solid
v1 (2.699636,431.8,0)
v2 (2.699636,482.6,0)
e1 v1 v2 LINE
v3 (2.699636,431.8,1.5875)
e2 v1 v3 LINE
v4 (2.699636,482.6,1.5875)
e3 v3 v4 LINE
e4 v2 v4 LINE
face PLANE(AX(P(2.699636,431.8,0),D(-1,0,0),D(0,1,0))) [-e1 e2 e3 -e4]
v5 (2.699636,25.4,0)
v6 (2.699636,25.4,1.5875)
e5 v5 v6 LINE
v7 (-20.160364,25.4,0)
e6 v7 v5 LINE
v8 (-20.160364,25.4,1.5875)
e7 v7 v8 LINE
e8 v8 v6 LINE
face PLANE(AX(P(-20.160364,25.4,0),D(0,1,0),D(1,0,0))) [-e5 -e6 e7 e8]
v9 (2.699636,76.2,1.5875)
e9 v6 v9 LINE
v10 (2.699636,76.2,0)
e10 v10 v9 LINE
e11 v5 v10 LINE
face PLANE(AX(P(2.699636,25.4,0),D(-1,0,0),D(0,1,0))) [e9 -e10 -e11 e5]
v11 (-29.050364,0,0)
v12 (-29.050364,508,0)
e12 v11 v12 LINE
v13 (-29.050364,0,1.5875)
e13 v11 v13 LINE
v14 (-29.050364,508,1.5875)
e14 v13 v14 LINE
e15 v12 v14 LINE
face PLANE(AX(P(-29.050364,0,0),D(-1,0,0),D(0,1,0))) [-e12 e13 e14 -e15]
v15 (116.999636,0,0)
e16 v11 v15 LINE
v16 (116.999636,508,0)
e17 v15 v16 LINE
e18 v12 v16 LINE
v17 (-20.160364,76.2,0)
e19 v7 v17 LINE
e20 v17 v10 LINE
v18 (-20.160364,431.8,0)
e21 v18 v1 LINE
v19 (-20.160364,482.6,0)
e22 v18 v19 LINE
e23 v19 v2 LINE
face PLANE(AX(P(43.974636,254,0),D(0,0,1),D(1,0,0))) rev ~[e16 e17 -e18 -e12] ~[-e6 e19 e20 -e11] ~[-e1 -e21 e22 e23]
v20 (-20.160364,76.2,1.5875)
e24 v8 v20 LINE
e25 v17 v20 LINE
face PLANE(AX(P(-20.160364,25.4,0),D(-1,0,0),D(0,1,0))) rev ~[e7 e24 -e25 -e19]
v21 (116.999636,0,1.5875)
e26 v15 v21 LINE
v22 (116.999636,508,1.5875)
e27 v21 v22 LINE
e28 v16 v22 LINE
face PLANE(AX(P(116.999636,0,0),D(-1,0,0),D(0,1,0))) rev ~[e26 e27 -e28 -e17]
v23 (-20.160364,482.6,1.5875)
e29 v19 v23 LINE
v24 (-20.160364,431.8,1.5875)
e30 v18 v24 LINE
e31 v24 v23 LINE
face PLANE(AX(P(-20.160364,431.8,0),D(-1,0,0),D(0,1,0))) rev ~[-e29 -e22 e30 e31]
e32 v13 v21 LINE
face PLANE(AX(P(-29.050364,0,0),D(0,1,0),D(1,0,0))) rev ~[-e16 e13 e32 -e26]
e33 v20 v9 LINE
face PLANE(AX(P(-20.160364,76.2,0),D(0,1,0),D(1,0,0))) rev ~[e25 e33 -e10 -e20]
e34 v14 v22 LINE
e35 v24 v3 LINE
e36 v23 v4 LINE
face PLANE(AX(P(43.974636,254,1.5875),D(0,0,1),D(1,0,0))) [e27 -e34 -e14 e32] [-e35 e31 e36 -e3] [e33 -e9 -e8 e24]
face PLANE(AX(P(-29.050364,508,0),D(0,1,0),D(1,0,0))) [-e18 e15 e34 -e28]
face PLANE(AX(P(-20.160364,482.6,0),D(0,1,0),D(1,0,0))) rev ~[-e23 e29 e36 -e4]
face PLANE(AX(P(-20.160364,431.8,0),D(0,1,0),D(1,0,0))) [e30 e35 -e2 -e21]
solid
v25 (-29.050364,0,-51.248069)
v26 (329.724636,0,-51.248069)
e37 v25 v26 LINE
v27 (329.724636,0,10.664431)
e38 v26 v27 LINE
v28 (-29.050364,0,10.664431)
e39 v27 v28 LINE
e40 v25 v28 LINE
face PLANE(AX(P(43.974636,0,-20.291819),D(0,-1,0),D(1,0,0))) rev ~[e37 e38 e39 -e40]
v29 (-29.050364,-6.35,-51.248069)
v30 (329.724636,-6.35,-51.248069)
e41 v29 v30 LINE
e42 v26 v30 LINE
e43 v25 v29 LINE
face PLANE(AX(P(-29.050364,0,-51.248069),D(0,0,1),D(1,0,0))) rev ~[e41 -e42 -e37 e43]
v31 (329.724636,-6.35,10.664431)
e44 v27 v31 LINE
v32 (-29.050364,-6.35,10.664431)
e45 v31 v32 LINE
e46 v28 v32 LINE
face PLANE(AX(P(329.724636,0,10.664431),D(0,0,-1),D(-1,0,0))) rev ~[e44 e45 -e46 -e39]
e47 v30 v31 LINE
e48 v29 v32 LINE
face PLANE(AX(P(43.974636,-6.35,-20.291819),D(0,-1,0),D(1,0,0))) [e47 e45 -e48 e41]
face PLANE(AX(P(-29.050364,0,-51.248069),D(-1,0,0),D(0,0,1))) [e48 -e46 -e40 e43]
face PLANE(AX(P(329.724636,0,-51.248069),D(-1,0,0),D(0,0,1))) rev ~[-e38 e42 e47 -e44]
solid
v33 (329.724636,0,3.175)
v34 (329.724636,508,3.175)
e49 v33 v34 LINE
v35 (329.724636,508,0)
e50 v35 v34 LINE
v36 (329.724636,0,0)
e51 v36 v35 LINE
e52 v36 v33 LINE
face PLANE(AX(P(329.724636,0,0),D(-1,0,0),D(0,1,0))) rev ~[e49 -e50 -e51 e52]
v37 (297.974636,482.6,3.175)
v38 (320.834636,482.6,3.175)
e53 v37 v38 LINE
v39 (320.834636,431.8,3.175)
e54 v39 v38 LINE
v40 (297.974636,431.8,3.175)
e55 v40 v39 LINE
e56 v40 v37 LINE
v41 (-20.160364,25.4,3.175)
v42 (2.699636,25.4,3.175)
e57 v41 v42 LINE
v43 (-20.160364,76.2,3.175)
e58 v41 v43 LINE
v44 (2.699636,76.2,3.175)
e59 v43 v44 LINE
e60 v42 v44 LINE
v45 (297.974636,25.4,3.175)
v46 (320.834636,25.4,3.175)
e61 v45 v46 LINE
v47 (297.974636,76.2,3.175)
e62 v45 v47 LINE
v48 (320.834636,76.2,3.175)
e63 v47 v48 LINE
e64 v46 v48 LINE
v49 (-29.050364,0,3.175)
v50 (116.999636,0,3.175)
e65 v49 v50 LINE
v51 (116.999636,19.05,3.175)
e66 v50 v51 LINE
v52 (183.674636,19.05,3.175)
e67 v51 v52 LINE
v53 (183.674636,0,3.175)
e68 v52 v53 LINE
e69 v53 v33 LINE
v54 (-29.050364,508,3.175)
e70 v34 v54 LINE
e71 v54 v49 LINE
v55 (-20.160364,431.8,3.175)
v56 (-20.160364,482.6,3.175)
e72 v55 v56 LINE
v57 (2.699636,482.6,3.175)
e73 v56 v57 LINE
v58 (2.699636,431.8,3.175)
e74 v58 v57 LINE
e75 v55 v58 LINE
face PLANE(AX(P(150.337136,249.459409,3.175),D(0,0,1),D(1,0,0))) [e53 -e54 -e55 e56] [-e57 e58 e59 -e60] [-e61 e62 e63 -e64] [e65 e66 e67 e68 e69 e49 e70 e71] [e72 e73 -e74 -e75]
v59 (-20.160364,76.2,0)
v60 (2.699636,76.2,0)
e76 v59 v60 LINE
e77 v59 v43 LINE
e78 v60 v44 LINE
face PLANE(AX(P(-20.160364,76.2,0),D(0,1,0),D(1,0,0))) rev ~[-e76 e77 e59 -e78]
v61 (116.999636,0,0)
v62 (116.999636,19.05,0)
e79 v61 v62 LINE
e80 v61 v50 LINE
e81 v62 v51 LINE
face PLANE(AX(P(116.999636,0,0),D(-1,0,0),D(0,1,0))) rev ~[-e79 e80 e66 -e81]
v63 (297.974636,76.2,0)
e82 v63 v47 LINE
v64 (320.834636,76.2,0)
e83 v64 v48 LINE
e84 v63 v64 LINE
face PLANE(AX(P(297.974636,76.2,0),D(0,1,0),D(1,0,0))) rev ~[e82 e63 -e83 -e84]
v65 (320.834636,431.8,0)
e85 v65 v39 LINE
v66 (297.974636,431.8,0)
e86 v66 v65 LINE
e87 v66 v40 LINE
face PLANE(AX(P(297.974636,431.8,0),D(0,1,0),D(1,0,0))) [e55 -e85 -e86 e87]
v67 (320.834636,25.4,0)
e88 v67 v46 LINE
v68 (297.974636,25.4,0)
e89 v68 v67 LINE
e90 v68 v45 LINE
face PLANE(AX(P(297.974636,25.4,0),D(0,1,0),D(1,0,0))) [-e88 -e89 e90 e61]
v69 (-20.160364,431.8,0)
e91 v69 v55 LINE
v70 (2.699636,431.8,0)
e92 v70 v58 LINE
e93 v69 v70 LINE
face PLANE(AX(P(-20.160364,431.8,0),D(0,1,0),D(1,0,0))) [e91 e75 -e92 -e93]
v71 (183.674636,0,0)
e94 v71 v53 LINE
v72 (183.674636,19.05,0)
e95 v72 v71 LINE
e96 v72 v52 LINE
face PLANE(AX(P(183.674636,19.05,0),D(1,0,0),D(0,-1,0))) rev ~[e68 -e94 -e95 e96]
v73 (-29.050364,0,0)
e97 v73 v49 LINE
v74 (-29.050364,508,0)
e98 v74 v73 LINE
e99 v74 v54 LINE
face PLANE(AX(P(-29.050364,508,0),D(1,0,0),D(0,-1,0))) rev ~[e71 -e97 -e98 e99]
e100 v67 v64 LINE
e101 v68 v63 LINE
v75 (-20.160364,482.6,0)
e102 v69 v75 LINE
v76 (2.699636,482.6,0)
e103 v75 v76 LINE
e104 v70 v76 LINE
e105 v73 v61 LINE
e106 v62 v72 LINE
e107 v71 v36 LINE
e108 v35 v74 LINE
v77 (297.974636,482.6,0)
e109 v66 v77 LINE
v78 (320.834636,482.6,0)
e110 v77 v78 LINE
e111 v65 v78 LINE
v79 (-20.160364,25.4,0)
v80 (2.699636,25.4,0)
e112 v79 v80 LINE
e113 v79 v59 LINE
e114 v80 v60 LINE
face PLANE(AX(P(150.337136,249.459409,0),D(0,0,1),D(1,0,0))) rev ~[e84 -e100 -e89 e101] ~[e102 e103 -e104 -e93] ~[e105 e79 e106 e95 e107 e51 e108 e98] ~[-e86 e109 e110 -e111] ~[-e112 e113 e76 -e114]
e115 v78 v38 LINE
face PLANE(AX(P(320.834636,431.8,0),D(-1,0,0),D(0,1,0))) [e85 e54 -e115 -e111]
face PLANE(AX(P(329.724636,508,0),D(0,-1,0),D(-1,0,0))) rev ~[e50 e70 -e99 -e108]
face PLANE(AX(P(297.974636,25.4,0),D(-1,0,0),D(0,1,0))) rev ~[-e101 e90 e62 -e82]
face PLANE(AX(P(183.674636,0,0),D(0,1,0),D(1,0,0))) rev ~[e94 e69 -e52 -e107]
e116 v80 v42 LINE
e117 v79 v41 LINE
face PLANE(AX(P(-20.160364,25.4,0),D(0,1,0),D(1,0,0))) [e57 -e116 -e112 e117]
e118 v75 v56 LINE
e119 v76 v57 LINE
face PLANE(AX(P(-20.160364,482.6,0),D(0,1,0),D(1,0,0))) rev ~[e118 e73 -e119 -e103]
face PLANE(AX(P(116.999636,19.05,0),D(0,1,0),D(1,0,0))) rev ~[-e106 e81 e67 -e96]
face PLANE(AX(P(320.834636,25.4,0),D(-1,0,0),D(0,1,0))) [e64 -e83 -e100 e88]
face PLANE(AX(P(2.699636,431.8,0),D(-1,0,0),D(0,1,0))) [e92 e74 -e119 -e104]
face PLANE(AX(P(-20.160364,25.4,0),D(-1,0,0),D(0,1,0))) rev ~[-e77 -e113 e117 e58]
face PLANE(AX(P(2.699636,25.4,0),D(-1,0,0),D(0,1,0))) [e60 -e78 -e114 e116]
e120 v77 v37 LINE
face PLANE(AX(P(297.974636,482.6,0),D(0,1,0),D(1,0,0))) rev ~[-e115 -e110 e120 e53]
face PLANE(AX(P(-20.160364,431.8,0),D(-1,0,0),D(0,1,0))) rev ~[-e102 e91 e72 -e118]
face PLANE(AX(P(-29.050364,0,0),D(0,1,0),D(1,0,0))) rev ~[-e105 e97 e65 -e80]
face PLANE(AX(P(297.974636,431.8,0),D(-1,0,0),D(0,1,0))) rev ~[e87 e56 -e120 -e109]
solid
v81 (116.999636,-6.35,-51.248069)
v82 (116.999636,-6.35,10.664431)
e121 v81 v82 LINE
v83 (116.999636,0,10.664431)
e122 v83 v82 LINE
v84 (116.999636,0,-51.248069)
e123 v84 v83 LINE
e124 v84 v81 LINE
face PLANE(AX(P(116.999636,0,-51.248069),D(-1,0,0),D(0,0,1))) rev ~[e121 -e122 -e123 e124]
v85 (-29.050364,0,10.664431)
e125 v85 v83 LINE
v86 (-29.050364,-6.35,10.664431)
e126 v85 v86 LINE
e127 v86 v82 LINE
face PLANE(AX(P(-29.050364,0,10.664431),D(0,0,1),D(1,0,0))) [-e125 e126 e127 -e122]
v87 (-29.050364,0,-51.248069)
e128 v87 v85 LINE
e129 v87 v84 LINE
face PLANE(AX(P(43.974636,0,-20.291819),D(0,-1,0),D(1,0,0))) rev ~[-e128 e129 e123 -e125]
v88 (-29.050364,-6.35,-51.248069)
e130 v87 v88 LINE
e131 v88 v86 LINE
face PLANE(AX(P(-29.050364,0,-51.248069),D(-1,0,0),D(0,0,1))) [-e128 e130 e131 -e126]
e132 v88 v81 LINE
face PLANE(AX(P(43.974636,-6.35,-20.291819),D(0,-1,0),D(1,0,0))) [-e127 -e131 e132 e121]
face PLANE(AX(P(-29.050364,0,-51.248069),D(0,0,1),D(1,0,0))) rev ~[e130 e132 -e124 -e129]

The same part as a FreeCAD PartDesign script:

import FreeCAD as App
import Part
import Sketcher
Q = App.Units.Quantity

doc = App.newDocument("Part")
body = doc.addObject("PartDesign::Body", "Body")

# Sketch on XZ plane
sketch1 = body.newObject("Sketcher::SketchObject", "Sketch")
sketch1.AttachmentSupport = (doc.getObject("XZ_Plane"), [""])
sketch1.MapMode = "FlatFace"
sketch1.addGeometry([
    Part.LineSegment(App.Vector(-29, 11, 0), App.Vector(-29, -51, 0)),
    Part.LineSegment(App.Vector(-29, -51, 0), App.Vector(330, -51, 0)),
    Part.LineSegment(App.Vector(330, -51, 0), App.Vector(330, 11, 0)),
    Part.LineSegment(App.Vector(330, 11, 0), App.Vector(-29, 11, 0)),
], False)
sketch1.addConstraint([
    Sketcher.Constraint("Coincident", 0, 2, 1, 1),
    Sketcher.Constraint("Coincident", 1, 2, 2, 1),
    Sketcher.Constraint("Coincident", 2, 2, 3, 1),
    Sketcher.Constraint("Coincident", 3, 2, 0, 1),
    Sketcher.Constraint("Vertical", 0),
    Sketcher.Constraint("Horizontal", 1),
    Sketcher.Constraint("Vertical", 2),
    Sketcher.Constraint("Horizontal", 3),
    Sketcher.Constraint("DistanceX", 1, 1, 1, 2, Q("14.125 in")),
    Sketcher.Constraint("DistanceY", 0, 2, 0, 1, Q("2.4375 in")),
    Sketcher.Constraint("DistanceY", 0, 2, -1, 1, Q("51.248069 mm")),
    Sketcher.Constraint("DistanceX", 0, 2, -1, 1, Q("29.050364 mm")),
])
pad1 = body.newObject("PartDesign::Pad", "Pad")
pad1.Profile = sketch1
pad1.Length = Q("0.25 in")
body2 = doc.addObject("PartDesign::Body", "Body001")

# Sketch on XZ plane
sketch2 = body2.newObject("Sketcher::SketchObject", "Sketch001")
sketch2.AttachmentSupport = (doc.getObject("XZ_Plane001"), [""])
sketch2.MapMode = "FlatFace"
sketch2.addGeometry([
    Part.LineSegment(App.Vector(-29, 11, 0), App.Vector(-29, -51, 0)),
    Part.LineSegment(App.Vector(-29, -51, 0), App.Vector(117, -51, 0)),
    Part.LineSegment(App.Vector(117, -51, 0), App.Vector(117, 11, 0)),
    Part.LineSegment(App.Vector(117, 11, 0), App.Vector(-29, 11, 0)),
], False)
sketch2.addConstraint([
    Sketcher.Constraint("Coincident", 0, 2, 1, 1),
    Sketcher.Constraint("Coincident", 1, 2, 2, 1),
    Sketcher.Constraint("Coincident", 2, 2, 3, 1),
    Sketcher.Constraint("Coincident", 3, 2, 0, 1),
    Sketcher.Constraint("Vertical", 0),
    Sketcher.Constraint("Horizontal", 1),
    Sketcher.Constraint("Vertical", 2),
    Sketcher.Constraint("Horizontal", 3),
    Sketcher.Constraint("DistanceX", 1, 1, 1, 2, Q("5.75 in")),
    Sketcher.Constraint("DistanceY", 0, 2, 0, 1, Q("2.4375 in")),
    Sketcher.Constraint("DistanceY", 0, 2, -1, 1, Q("51.248069 mm")),
    Sketcher.Constraint("DistanceX", 0, 2, -1, 1, Q("29.050364 mm")),
])
pad2 = body2.newObject("PartDesign::Pad", "Pad001")
pad2.Profile = sketch2
pad2.Length = Q("0.25 in")
body3 = doc.addObject("PartDesign::Body", "Body002")

# Sketch on XY plane
sketch3 = body3.newObject("Sketcher::SketchObject", "Sketch002")
sketch3.AttachmentSupport = (doc.getObject("XY_Plane002"), [""])
sketch3.MapMode = "FlatFace"
sketch3.addGeometry([
    Part.LineSegment(App.Vector(-29, 508, 0), App.Vector(-29, 0, 0)),  # 0
    Part.LineSegment(App.Vector(-29, 0, 0), App.Vector(117, 0, 0)),  # 1
    Part.LineSegment(App.Vector(117, 0, 0), App.Vector(117, 508, 0)),  # 2
    Part.LineSegment(App.Vector(117, 508, 0), App.Vector(-29, 508, 0)),  # 3
    Part.LineSegment(App.Vector(3, 25, 0), App.Vector(-20, 25, 0)),  # 4
    Part.LineSegment(App.Vector(-20, 25, 0), App.Vector(-20, 76, 0)),  # 5
    Part.LineSegment(App.Vector(-20, 76, 0), App.Vector(3, 76, 0)),  # 6
    Part.LineSegment(App.Vector(3, 76, 0), App.Vector(3, 25, 0)),  # 7
    Part.LineSegment(App.Vector(3, 432, 0), App.Vector(-20, 432, 0)),  # 8
    Part.LineSegment(App.Vector(-20, 432, 0), App.Vector(-20, 483, 0)),  # 9
    Part.LineSegment(App.Vector(-20, 483, 0), App.Vector(3, 483, 0)),  # 10
    Part.LineSegment(App.Vector(3, 483, 0), App.Vector(3, 432, 0)),  # 11
], False)
sketch3.addConstraint([
    Sketcher.Constraint("Coincident", 0, 2, 1, 1),
    Sketcher.Constraint("Coincident", 1, 2, 2, 1),
    Sketcher.Constraint("Coincident", 2, 2, 3, 1),
    Sketcher.Constraint("Coincident", 3, 2, 0, 1),
    Sketcher.Constraint("Coincident", 4, 2, 5, 1),
    Sketcher.Constraint("Coincident", 5, 2, 6, 1),
    Sketcher.Constraint("Coincident", 6, 2, 7, 1),
    Sketcher.Constraint("Coincident", 7, 2, 4, 1),
    Sketcher.Constraint("Coincident", 8, 2, 9, 1),
    Sketcher.Constraint("Coincident", 9, 2, 10, 1),
    Sketcher.Constraint("Coincident", 10, 2, 11, 1),
    Sketcher.Constraint("Coincident", 11, 2, 8, 1),
    Sketcher.Constraint("Vertical", 0),
    Sketcher.Constraint("Horizontal", 1),
    Sketcher.Constraint("Vertical", 2),
    Sketcher.Constraint("Horizontal", 3),
    Sketcher.Constraint("Horizontal", 4),
    Sketcher.Constraint("Vertical", 5),
    Sketcher.Constraint("Horizontal", 6),
    Sketcher.Constraint("Vertical", 7),
    Sketcher.Constraint("Horizontal", 8),
    Sketcher.Constraint("Vertical", 9),
    Sketcher.Constraint("Horizontal", 10),
    Sketcher.Constraint("Vertical", 11),
    Sketcher.Constraint("PointOnObject", 0, 2, -1),
    Sketcher.Constraint("Vertical", 5, 2, 8, 2),
    Sketcher.Constraint("Vertical", 7, 2, 10, 2),
    Sketcher.Constraint("Equal", 7, 9),
    Sketcher.Constraint("DistanceY", 0, 2, 0, 1, Q("20 in")),
    Sketcher.Constraint("DistanceY", 5, 1, 5, 2, Q("2 in")),
    Sketcher.Constraint("DistanceX", 4, 2, 4, 1, Q("0.9 in")),
    Sketcher.Constraint("DistanceY", -1, 1, 4, 2, Q("1 in")),
    Sketcher.Constraint("DistanceY", -1, 1, 8, 2, Q("17 in")),
    Sketcher.Constraint("DistanceX", 1, 1, 1, 2, Q("5.75 in")),
    Sketcher.Constraint("DistanceX", 4, 2, 1, 2, Q("5.4 in")),
    Sketcher.Constraint("DistanceX", 0, 2, -1, 1, Q("29.050364 mm")),
])
pad3 = body3.newObject("PartDesign::Pad", "Pad002")
pad3.Profile = sketch3
pad3.Length = Q("0.0625 in")
body4 = doc.addObject("PartDesign::Body", "Body003")

# Sketch on XY plane
sketch4 = body4.newObject("Sketcher::SketchObject", "Sketch003")
sketch4.AttachmentSupport = (doc.getObject("XY_Plane003"), [""])
sketch4.MapMode = "FlatFace"
sketch4.addGeometry([
    Part.LineSegment(App.Vector(-29, 508, 0), App.Vector(-29, 0, 0)),  # 0
    Part.LineSegment(App.Vector(-29, 0, 0), App.Vector(117, 0, 0)),  # 1
    Part.LineSegment(App.Vector(117, 0, 0), App.Vector(117, 19, 0)),  # 2
    Part.LineSegment(App.Vector(117, 19, 0), App.Vector(184, 19, 0)),  # 3
    Part.LineSegment(App.Vector(184, 19, 0), App.Vector(184, 0, 0)),  # 4
    Part.LineSegment(App.Vector(184, 0, 0), App.Vector(330, 0, 0)),  # 5
    Part.LineSegment(App.Vector(330, 0, 0), App.Vector(330, 508, 0)),  # 6
    Part.LineSegment(App.Vector(330, 508, 0), App.Vector(-29, 508, 0)),  # 7
    Part.LineSegment(App.Vector(3, 25, 0), App.Vector(-20, 25, 0)),  # 8
    Part.LineSegment(App.Vector(-20, 25, 0), App.Vector(-20, 76, 0)),  # 9
    Part.LineSegment(App.Vector(-20, 76, 0), App.Vector(3, 76, 0)),  # 10
    Part.LineSegment(App.Vector(3, 76, 0), App.Vector(3, 25, 0)),  # 11
    Part.LineSegment(App.Vector(321, 25, 0), App.Vector(298, 25, 0)),  # 12
    Part.LineSegment(App.Vector(298, 25, 0), App.Vector(298, 76, 0)),  # 13
    Part.LineSegment(App.Vector(298, 76, 0), App.Vector(321, 76, 0)),  # 14
    Part.LineSegment(App.Vector(321, 76, 0), App.Vector(321, 25, 0)),  # 15
    Part.LineSegment(App.Vector(3, 432, 0), App.Vector(-20, 432, 0)),  # 16
    Part.LineSegment(App.Vector(-20, 432, 0), App.Vector(-20, 483, 0)),  # 17
    Part.LineSegment(App.Vector(-20, 483, 0), App.Vector(3, 483, 0)),  # 18
    Part.LineSegment(App.Vector(3, 483, 0), App.Vector(3, 432, 0)),  # 19
    Part.LineSegment(App.Vector(321, 432, 0), App.Vector(298, 432, 0)),  # 20
    Part.LineSegment(App.Vector(298, 432, 0), App.Vector(298, 483, 0)),  # 21
    Part.LineSegment(App.Vector(298, 483, 0), App.Vector(321, 483, 0)),  # 22
    Part.LineSegment(App.Vector(321, 483, 0), App.Vector(321, 432, 0)),  # 23
], False)
sketch4.addConstraint([
    Sketcher.Constraint("Coincident", 0, 2, 1, 1),
    Sketcher.Constraint("Coincident", 1, 2, 2, 1),
    Sketcher.Constraint("Coincident", 2, 2, 3, 1),
    Sketcher.Constraint("Coincident", 3, 2, 4, 1),
    Sketcher.Constraint("Coincident", 4, 2, 5, 1),
    Sketcher.Constraint("Coincident", 5, 2, 6, 1),
    Sketcher.Constraint("Coincident", 6, 2, 7, 1),
    Sketcher.Constraint("Coincident", 7, 2, 0, 1),
    Sketcher.Constraint("Coincident", 8, 2, 9, 1),
    Sketcher.Constraint("Coincident", 9, 2, 10, 1),
    Sketcher.Constraint("Coincident", 10, 2, 11, 1),
    Sketcher.Constraint("Coincident", 11, 2, 8, 1),
    Sketcher.Constraint("Coincident", 12, 2, 13, 1),
    Sketcher.Constraint("Coincident", 13, 2, 14, 1),
    Sketcher.Constraint("Coincident", 14, 2, 15, 1),
    Sketcher.Constraint("Coincident", 15, 2, 12, 1),
    Sketcher.Constraint("Coincident", 16, 2, 17, 1),
    Sketcher.Constraint("Coincident", 17, 2, 18, 1),
    Sketcher.Constraint("Coincident", 18, 2, 19, 1),
    Sketcher.Constraint("Coincident", 19, 2, 16, 1),
    Sketcher.Constraint("Coincident", 20, 2, 21, 1),
    Sketcher.Constraint("Coincident", 21, 2, 22, 1),
    Sketcher.Constraint("Coincident", 22, 2, 23, 1),
    Sketcher.Constraint("Coincident", 23, 2, 20, 1),
    Sketcher.Constraint("Vertical", 0),
    Sketcher.Constraint("Horizontal", 1),
    Sketcher.Constraint("Vertical", 2),
    Sketcher.Constraint("Horizontal", 3),
    Sketcher.Constraint("Vertical", 4),
    Sketcher.Constraint("Horizontal", 5),
    Sketcher.Constraint("Vertical", 6),
    Sketcher.Constraint("Horizontal", 7),
    Sketcher.Constraint("Horizontal", 8),
    Sketcher.Constraint("Vertical", 9),
    Sketcher.Constraint("Horizontal", 10),
    Sketcher.Constraint("Vertical", 11),
    Sketcher.Constraint("Horizontal", 12),
    Sketcher.Constraint("Vertical", 13),
    Sketcher.Constraint("Horizontal", 14),
    Sketcher.Constraint("Vertical", 15),
    Sketcher.Constraint("Horizontal", 16),
    Sketcher.Constraint("Vertical", 17),
    Sketcher.Constraint("Horizontal", 18),
    Sketcher.Constraint("Vertical", 19),
    Sketcher.Constraint("Horizontal", 20),
    Sketcher.Constraint("Vertical", 21),
    Sketcher.Constraint("Horizontal", 22),
    Sketcher.Constraint("Vertical", 23),
    Sketcher.Constraint("PointOnObject", 0, 2, -1),
    Sketcher.Constraint("PointOnObject", 4, 2, -1),
    Sketcher.Constraint("Horizontal", 11, 2, 12, 2),
    Sketcher.Constraint("Horizontal", 10, 2, 13, 2),
    Sketcher.Constraint("Horizontal", 19, 2, 20, 2),
    Sketcher.Constraint("Horizontal", 18, 2, 21, 2),
    Sketcher.Constraint("Vertical", 9, 2, 16, 2),
    Sketcher.Constraint("Vertical", 11, 2, 18, 2),
    Sketcher.Constraint("Vertical", 13, 2, 20, 2),
    Sketcher.Constraint("Vertical", 15, 2, 22, 2),
    Sketcher.Constraint("Equal", 1, 5),
    Sketcher.Constraint("Equal", 10, 12),
    Sketcher.Constraint("Equal", 15, 17),
    Sketcher.Constraint("DistanceY", 0, 2, 0, 1, Q("20 in")),
    Sketcher.Constraint("DistanceY", 9, 1, 9, 2, Q("2 in")),
    Sketcher.Constraint("DistanceX", 8, 2, 8, 1, Q("0.9 in")),
    Sketcher.Constraint("DistanceY", -1, 1, 8, 2, Q("1 in")),
    Sketcher.Constraint("DistanceY", -1, 1, 16, 2, Q("17 in")),
    Sketcher.Constraint("DistanceX", 1, 1, 1, 2, Q("5.75 in")),
    Sketcher.Constraint("DistanceY", 2, 1, 2, 2, Q("0.75 in")),
    Sketcher.Constraint("DistanceX", 8, 2, 2, 2, Q("5.4 in")),
    Sketcher.Constraint("DistanceX", 3, 2, 12, 2, Q("4.5 in")),
    Sketcher.Constraint("DistanceX", 3, 1, 3, 2, Q("2.625 in")),
    Sketcher.Constraint("DistanceX", 0, 2, -1, 1, Q("29.050364 mm")),
])
pad4 = body4.newObject("PartDesign::Pad", "Pad003")
pad4.Profile = sketch4
pad4.Length = Q("0.125 in")

doc.recompute()
